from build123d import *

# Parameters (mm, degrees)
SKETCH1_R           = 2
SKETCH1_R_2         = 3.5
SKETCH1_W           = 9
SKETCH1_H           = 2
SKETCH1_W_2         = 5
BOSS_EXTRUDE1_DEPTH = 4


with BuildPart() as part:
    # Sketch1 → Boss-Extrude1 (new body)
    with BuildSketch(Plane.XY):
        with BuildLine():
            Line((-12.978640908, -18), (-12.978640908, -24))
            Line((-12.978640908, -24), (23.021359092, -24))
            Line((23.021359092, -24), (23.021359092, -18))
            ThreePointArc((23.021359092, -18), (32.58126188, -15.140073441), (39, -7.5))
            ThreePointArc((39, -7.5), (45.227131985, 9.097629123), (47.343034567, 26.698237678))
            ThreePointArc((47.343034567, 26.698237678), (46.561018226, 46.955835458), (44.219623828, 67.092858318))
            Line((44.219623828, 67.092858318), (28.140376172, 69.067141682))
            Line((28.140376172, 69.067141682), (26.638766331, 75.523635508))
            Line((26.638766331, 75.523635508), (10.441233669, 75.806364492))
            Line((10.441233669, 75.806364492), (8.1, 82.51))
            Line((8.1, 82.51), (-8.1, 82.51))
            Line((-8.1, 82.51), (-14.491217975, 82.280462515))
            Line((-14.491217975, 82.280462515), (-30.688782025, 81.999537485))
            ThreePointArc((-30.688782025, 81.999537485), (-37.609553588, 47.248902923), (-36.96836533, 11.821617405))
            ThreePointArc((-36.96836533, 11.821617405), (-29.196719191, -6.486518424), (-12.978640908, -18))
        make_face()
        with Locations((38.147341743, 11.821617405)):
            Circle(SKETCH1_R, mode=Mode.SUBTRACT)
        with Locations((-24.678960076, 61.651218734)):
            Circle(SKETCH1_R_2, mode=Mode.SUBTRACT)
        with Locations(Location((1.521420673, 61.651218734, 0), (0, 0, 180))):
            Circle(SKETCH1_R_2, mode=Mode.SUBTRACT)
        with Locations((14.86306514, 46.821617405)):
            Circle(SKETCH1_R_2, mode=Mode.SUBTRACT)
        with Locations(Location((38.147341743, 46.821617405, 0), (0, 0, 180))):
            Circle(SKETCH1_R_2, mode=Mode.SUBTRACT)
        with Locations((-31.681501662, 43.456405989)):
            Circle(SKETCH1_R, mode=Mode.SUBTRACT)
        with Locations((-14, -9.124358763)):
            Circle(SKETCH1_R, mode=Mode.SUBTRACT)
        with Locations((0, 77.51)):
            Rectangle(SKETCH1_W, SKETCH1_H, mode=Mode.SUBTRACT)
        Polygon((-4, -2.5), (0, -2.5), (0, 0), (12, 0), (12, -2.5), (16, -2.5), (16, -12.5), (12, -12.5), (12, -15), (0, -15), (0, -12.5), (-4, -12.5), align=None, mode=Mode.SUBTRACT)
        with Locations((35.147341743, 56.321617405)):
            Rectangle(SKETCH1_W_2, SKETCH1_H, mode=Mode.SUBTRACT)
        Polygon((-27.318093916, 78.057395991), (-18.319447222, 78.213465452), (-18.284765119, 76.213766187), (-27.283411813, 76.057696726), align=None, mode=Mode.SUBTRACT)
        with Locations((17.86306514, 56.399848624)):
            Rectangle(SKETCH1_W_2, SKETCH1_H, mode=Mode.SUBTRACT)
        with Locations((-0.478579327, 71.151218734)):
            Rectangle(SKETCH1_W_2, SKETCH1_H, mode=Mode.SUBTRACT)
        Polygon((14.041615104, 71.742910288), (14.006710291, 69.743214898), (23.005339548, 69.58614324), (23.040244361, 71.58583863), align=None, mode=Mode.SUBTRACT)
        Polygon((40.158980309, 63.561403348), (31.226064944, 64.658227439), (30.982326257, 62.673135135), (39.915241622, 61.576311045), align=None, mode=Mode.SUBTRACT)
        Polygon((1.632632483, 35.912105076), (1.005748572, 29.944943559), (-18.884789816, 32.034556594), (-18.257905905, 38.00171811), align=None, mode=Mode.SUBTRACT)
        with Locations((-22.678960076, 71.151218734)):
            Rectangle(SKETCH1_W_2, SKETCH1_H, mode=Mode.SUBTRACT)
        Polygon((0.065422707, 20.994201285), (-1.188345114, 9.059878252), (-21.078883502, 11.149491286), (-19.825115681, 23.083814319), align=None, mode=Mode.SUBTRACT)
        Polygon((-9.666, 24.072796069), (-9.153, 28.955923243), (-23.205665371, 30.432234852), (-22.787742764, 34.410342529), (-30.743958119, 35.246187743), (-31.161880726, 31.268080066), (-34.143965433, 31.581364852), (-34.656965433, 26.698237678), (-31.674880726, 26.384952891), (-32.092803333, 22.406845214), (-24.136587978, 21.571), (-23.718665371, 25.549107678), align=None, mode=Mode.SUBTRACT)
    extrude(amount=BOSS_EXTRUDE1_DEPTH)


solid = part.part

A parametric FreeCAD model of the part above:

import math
import FreeCAD as App
import Part
import Sketcher
from FreeCAD import Vector
Q = App.Units.Quantity


def add_polygon(sketch, points):
    """Adds a closed chain of lines whose ends are joined by coincident constraints."""
    first, n = sketch.GeometryCount, len(points)
    for a, b in zip(points, points[1:] + points[:1]):
        sketch.addGeometry(Part.LineSegment(App.Vector(*a, 0), App.Vector(*b, 0)), False)
    for i in range(n):
        sketch.addConstraint(Sketcher.Constraint("Coincident", first + i, 2, first + (i + 1) % n, 1))

doc = App.newDocument("Part")
params = doc.addObject("Spreadsheet::Sheet", "Params")
for row, (alias, value) in enumerate([
    ("sketch1_diameter", "4 mm"),
    ("sketch1_diameter2", "7 mm"),
    ("sketch1_width", "36 mm"),
    ("sketch1_width2", "4 mm"),
    ("sketch1_width3", "12 mm"),
    ("pad1_length", "4 mm"),
], start=1):
    params.set(f"A{row}", alias)
    params.set(f"B{row}", "=" + value)
    params.setAlias(f"B{row}", alias)

body = doc.addObject("PartDesign::Body", "Body")

# Sketch on XY plane
sketch1 = body.newObject("Sketcher::SketchObject", "Sketch")
sketch1.AttachmentSupport = (doc.getObject("XY_Plane"), [""])
sketch1.MapMode = "FlatFace"
sketch1.addGeometry(Part.LineSegment(Vector(-12.978641, -18, 0), Vector(-12.978641, -24, 0)), False)  # 0
sketch1.addGeometry(Part.LineSegment(Vector(-12.978641, -24, 0), Vector(23.021359, -24, 0)), False)  # 1
sketch1.addGeometry(Part.LineSegment(Vector(23.021359, -24, 0), Vector(23.021359, -18, 0)), False)  # 2
sketch1.addGeometry(Part.ArcOfCircle(Part.Circle(Vector(23.021359, -0.592049, 0), Vector(0, 0, 1), 17.407951), math.radians(-90), math.radians(-23.379989)), False)  # 3
sketch1.addGeometry(Part.ArcOfCircle(Part.Circle(Vector(-26.918056, 26.698238, 0), Vector(0, 0, 1), 74.26109), math.radians(-27.42025), math.radians(0)), False)  # 4
sketch1.addGeometry(Part.ArcOfCircle(Part.Circle(Vector(-215.427572, 26.698238, 0), Vector(0, 0, 1), 262.770607), math.radians(0), math.radians(8.842904)), False)  # 5
sketch1.addGeometry(Part.LineSegment(Vector(44.219624, 67.092858, 0), Vector(28.140376, 69.067142, 0)), False)  # 6
sketch1.addGeometry(Part.LineSegment(Vector(28.140376, 69.067142, 0), Vector(26.638766, 75.523636, 0)), False)  # 7
sketch1.addGeometry(Part.LineSegment(Vector(26.638766, 75.523636, 0), Vector(10.441234, 75.806364, 0)), False)  # 8
sketch1.addGeometry(Part.LineSegment(Vector(10.441234, 75.806364, 0), Vector(8.1, 82.51, 0)), False)  # 9
sketch1.addGeometry(Part.LineSegment(Vector(8.1, 82.51, 0), Vector(-8.1, 82.51, 0)), False)  # 10
sketch1.addGeometry(Part.LineSegment(Vector(-8.1, 82.51, 0), Vector(-14.491218, 82.280463, 0)), False)  # 11
sketch1.addGeometry(Part.LineSegment(Vector(-14.491218, 82.280463, 0), Vector(-30.688782, 81.999537, 0)), False)  # 12
sketch1.addGeometry(Part.ArcOfCircle(Part.Circle(Vector(127.100516, 32.510498, 0), Vector(0, 0, 1), 165.368157), math.radians(162.586487), math.radians(187.186993)), False)  # 13
sketch1.addGeometry(Part.ArcOfCircle(Part.Circle(Vector(-0.762492, 16.387133, 0), Vector(0, 0, 1), 36.492591), math.radians(-172.813007), math.radians(-109.55776)), False)  # 14
sketch1.addGeometry(Part.Circle(Vector(-14, -9.124359, 0), Vector(0, 0, 1), 2), False)  # 15
add_polygon(sketch1, [(-9.153, 28.955923), (-9.666, 24.072796), (-23.718665, 25.549108), (-24.136588, 21.571), (-32.092803, 22.406845), (-31.674881, 26.384953), (-34.656965, 26.698238), (-34.143965, 31.581365), (-31.161881, 31.26808), (-30.743958, 35.246188), (-22.787743, 34.410343), (-23.205665, 30.432235)])  # lines 16-27
add_polygon(sketch1, [(-19.825116, 23.083814), (0.065423, 20.994201), (-1.188345, 9.059878), (-21.078884, 11.149491)])  # lines 28-31
add_polygon(sketch1, [(-4, -12.5), (-4, -2.5), (0, -2.5), (0, 0), (12, 0), (12, -2.5), (16, -2.5), (16, -12.5), (12, -12.5), (12, -15), (0, -15), (0, -12.5)])  # lines 32-43
sketch1.addGeometry(Part.Circle(Vector(38.147342, 11.821617, 0), Vector(0, 0, 1), 2), False)  # 44
sketch1.addGeometry(Part.Circle(Vector(-31.681502, 43.456406, 0), Vector(0, 0, 1), 2), False)  # 45
add_polygon(sketch1, [(-18.257906, 38.001718), (1.632632, 35.912105), (1.005749, 29.944944), (-18.88479, 32.034557)])  # lines 46-49
sketch1.addGeometry(Part.Circle(Vector(-24.67896, 61.651219, 0), Vector(0, 0, 1), 3.5), False)  # 50
add_polygon(sketch1, [(-20.17896, 70.151219), (-25.17896, 70.151219), (-25.17896, 72.151219), (-20.17896, 72.151219)])  # lines 51-54
add_polygon(sketch1, [(-27.283412, 76.057697), (-27.318094, 78.057396), (-18.319447, 78.213465), (-18.284765, 76.213766)])  # lines 55-58
sketch1.addGeometry(Part.Circle(Vector(1.521421, 61.651219, 0), Vector(0, 0, 1), 3.5), False)  # 59
add_polygon(sketch1, [(2.021421, 70.151219), (-2.978579, 70.151219), (-2.978579, 72.151219), (2.021421, 72.151219)])  # lines 60-63
add_polygon(sketch1, [(4.5, 76.51), (-4.5, 76.51), (-4.5, 78.51), (4.5, 78.51)])  # lines 64-67
sketch1.addGeometry(Part.Circle(Vector(14.863065, 46.821617, 0), Vector(0, 0, 1), 3.5), False)  # 68
sketch1.addGeometry(Part.Circle(Vector(38.147342, 46.821617, 0), Vector(0, 0, 1), 3.5), False)  # 69
add_polygon(sketch1, [(20.363065, 55.399849), (15.363065, 55.399849), (15.363065, 57.399849), (20.363065, 57.399849)])  # lines 70-73
add_polygon(sketch1, [(14.00671, 69.743215), (14.041615, 71.74291), (23.040244, 71.585839), (23.00534, 69.586143)])  # lines 74-77
add_polygon(sketch1, [(37.647342, 55.321617), (32.647342, 55.321617), (32.647342, 57.321617), (37.647342, 57.321617)])  # lines 78-81
add_polygon(sketch1, [(31.226065, 64.658227), (40.15898, 63.561403), (39.915242, 61.576311), (30.982326, 62.673135)])  # lines 82-85
sketch1.addConstraint(Sketcher.Constraint("Coincident", 0, 2, 1, 1))
sketch1.addConstraint(Sketcher.Constraint("Coincident", 1, 2, 2, 1))
sketch1.addConstraint(Sketcher.Constraint("Coincident", 2, 2, 3, 1))
sketch1.addConstraint(Sketcher.Constraint("Coincident", 3, 2, 4, 1))
sketch1.addConstraint(Sketcher.Constraint("Tangent", 4, 2, 5, 1))
sketch1.addConstraint(Sketcher.Constraint("Coincident", 5, 2, 6, 1))
sketch1.addConstraint(Sketcher.Constraint("Coincident", 6, 2, 7, 1))
sketch1.addConstraint(Sketcher.Constraint("Coincident", 7, 2, 8, 1))
sketch1.addConstraint(Sketcher.Constraint("Coincident", 8, 2, 9, 1))
sketch1.addConstraint(Sketcher.Constraint("Coincident", 9, 2, 10, 1))
sketch1.addConstraint(Sketcher.Constraint("Coincident", 10, 2, 11, 1))
sketch1.addConstraint(Sketcher.Constraint("Coincident", 11, 2, 12, 1))
sketch1.addConstraint(Sketcher.Constraint("Coincident", 12, 2, 13, 1))
sketch1.addConstraint(Sketcher.Constraint("Tangent", 13, 2, 14, 1))
sketch1.addConstraint(Sketcher.Constraint("Coincident", 14, 2, 0, 1))
sketch1.addConstraint(Sketcher.Constraint("Vertical", 0))
sketch1.addConstraint(Sketcher.Constraint("Horizontal", 1))
sketch1.addConstraint(Sketcher.Constraint("Vertical", 2))
sketch1.addConstraint(Sketcher.Constraint("Horizontal", 10))
sketch1.addConstraint(Sketcher.Constraint("Vertical", 32))
sketch1.addConstraint(Sketcher.Constraint("Horizontal", 33))
sketch1.addConstraint(Sketcher.Constraint("Vertical", 34))
sketch1.addConstraint(Sketcher.Constraint("Horizontal", 35))
sketch1.addConstraint(Sketcher.Constraint("Vertical", 36))
sketch1.addConstraint(Sketcher.Constraint("Horizontal", 37))
sketch1.addConstraint(Sketcher.Constraint("Vertical", 38))
sketch1.addConstraint(Sketcher.Constraint("Horizontal", 39))
sketch1.addConstraint(Sketcher.Constraint("Vertical", 40))
sketch1.addConstraint(Sketcher.Constraint("Horizontal", 41))
sketch1.addConstraint(Sketcher.Constraint("Vertical", 42))
sketch1.addConstraint(Sketcher.Constraint("Horizontal", 43))
sketch1.addConstraint(Sketcher.Constraint("Horizontal", 51))
sketch1.addConstraint(Sketcher.Constraint("Vertical", 52))
sketch1.addConstraint(Sketcher.Constraint("Horizontal", 53))
sketch1.addConstraint(Sketcher.Constraint("Vertical", 54))
sketch1.addConstraint(Sketcher.Constraint("Horizontal", 60))
sketch1.addConstraint(Sketcher.Constraint("Vertical", 61))
sketch1.addConstraint(Sketcher.Constraint("Horizontal", 62))
sketch1.addConstraint(Sketcher.Constraint("Vertical", 63))
sketch1.addConstraint(Sketcher.Constraint("Horizontal", 64))
sketch1.addConstraint(Sketcher.Constraint("Vertical", 65))
sketch1.addConstraint(Sketcher.Constraint("Horizontal", 66))
sketch1.addConstraint(Sketcher.Constraint("Vertical", 67))
sketch1.addConstraint(Sketcher.Constraint("Horizontal", 70))
sketch1.addConstraint(Sketcher.Constraint("Vertical", 71))
sketch1.addConstraint(Sketcher.Constraint("Horizontal", 72))
sketch1.addConstraint(Sketcher.Constraint("Vertical", 73))
sketch1.addConstraint(Sketcher.Constraint("Horizontal", 78))
sketch1.addConstraint(Sketcher.Constraint("Vertical", 79))
sketch1.addConstraint(Sketcher.Constraint("Horizontal", 80))
sketch1.addConstraint(Sketcher.Constraint("Vertical", 81))
sketch1.addConstraint(Sketcher.Constraint("Coincident", 34, 2, -1, 1))
sketch1.addConstraint(Sketcher.Constraint("Equal", 15, 44))
sketch1.addConstraint(Sketcher.Constraint("Equal", 44, 45))
sketch1.addConstraint(Sketcher.Constraint("Equal", 50, 59))
sketch1.addConstraint(Sketcher.Constraint("Equal", 59, 68))
sketch1.addConstraint(Sketcher.Constraint("Equal", 68, 69))
sketch1.addConstraint(Sketcher.Constraint("PointOnObject", 41, 2, -2))
sketch1.addConstraint(Sketcher.Constraint("Perpendicular", 16, 17))
sketch1.addConstraint(Sketcher.Constraint("Perpendicular", 17, 18))
sketch1.addConstraint(Sketcher.Constraint("Perpendicular", 18, 19))
sketch1.addConstraint(Sketcher.Constraint("Perpendicular", 19, 20))
sketch1.addConstraint(Sketcher.Constraint("Perpendicular", 20, 21))
sketch1.addConstraint(Sketcher.Constraint("Perpendicular", 21, 22))
sketch1.addConstraint(Sketcher.Constraint("Perpendicular", 22, 23))
sketch1.addConstraint(Sketcher.Constraint("Perpendicular", 23, 24))
sketch1.addConstraint(Sketcher.Constraint("Perpendicular", 24, 25))
sketch1.addConstraint(Sketcher.Constraint("Perpendicular", 25, 26))
sketch1.addConstraint(Sketcher.Constraint("Perpendicular", 26, 27))
sketch1.addConstraint(Sketcher.Constraint("Parallel", 27, 28))
sketch1.addConstraint(Sketcher.Constraint("Perpendicular", 28, 29))
sketch1.addConstraint(Sketcher.Constraint("Perpendicular", 29, 30))
sketch1.addConstraint(Sketcher.Constraint("Perpendicular", 30, 31))
sketch1.addConstraint(Sketcher.Constraint("Perpendicular", 31, 46))
sketch1.addConstraint(Sketcher.Constraint("Perpendicular", 46, 47))
sketch1.addConstraint(Sketcher.Constraint("Perpendicular", 47, 48))
sketch1.addConstraint(Sketcher.Constraint("Perpendicular", 48, 49))
sketch1.addConstraint(Sketcher.Constraint("Perpendicular", 12, 55))
sketch1.addConstraint(Sketcher.Constraint("Perpendicular", 55, 56))
sketch1.addConstraint(Sketcher.Constraint("Perpendicular", 56, 57))
sketch1.addConstraint(Sketcher.Constraint("Perpendicular", 57, 58))
sketch1.addConstraint(Sketcher.Constraint("Perpendicular", 8, 74))
sketch1.addConstraint(Sketcher.Constraint("Perpendicular", 74, 75))
sketch1.addConstraint(Sketcher.Constraint("Perpendicular", 75, 76))
sketch1.addConstraint(Sketcher.Constraint("Perpendicular", 76, 77))
sketch1.addConstraint(Sketcher.Constraint("Parallel", 6, 82))
sketch1.addConstraint(Sketcher.Constraint("Perpendicular", 82, 83))
sketch1.addConstraint(Sketcher.Constraint("Perpendicular", 83, 84))
sketch1.addConstraint(Sketcher.Constraint("Perpendicular", 84, 85))
sketch1.addConstraint(Sketcher.Constraint("Horizontal", 4, 3, 5, 3))
sketch1.addConstraint(Sketcher.Constraint("Horizontal", 50, 3, 59, 3))
sketch1.addConstraint(Sketcher.Constraint("Horizontal", 68, 3, 69, 3))
sketch1.addConstraint(Sketcher.Constraint("Horizontal", 44, 3, 13, 2))
sketch1.addConstraint(Sketcher.Constraint("Horizontal", 2, 2, 14, 2))
sketch1.addConstraint(Sketcher.Constraint("Horizontal", 4, 2, 21, 2))
sketch1.addConstraint(Sketcher.Constraint("Horizontal", 33, 2, 36, 2))
sketch1.addConstraint(Sketcher.Constraint("Horizontal", 39, 2, 42, 2))
sketch1.addConstraint(Sketcher.Constraint("Horizontal", 54, 2, 60, 2))
sketch1.addConstraint(Sketcher.Constraint("Horizontal", 53, 2, 61, 2))
sketch1.addConstraint(Sketcher.Constraint("Vertical", 44, 3, 69, 3))
sketch1.addConstraint(Sketcher.Constraint("Vertical", 3, 3, 1, 2))
sketch1.addConstraint(Sketcher.Constraint("Vertical", 36, 2, 39, 2))
sketch1.addConstraint(Sketcher.Constraint("Equal", 33, 37))
sketch1.addConstraint(Sketcher.Constraint("Equal", 53, 60))
sketch1.addConstraint(Sketcher.Constraint("Equal", 62, 70))
sketch1.addConstraint(Sketcher.Constraint("Equal", 72, 78))
sketch1.addConstraint(Sketcher.Constraint("Equal", 36, 40))
sketch1.addConstraint(Sketcher.Constraint("Equal", 63, 65))
sketch1.addConstraint(Sketcher.Constraint("Equal", 67, 71))
sketch1.addConstraint(Sketcher.Constraint("Equal", 73, 79))
sketch1.addConstraint(Sketcher.Constraint("Equal", 6, 8))
sketch1.addConstraint(Sketcher.Constraint("Equal", 8, 12))
sketch1.addConstraint(Sketcher.Constraint("Equal", 18, 20))
sketch1.addConstraint(Sketcher.Constraint("Equal", 16, 22))
sketch1.addConstraint(Sketcher.Constraint("Equal", 21, 23))
sketch1.addConstraint(Sketcher.Constraint("Equal", 20, 24))
sketch1.addConstraint(Sketcher.Constraint("Equal", 19, 25))
sketch1.addConstraint(Sketcher.Constraint("Equal", 30, 46))
sketch1.addConstraint(Sketcher.Constraint("Equal", 57, 74))
sketch1.addConstraint(Sketcher.Constraint("Equal", 58, 75))
sketch1.addConstraint(Sketcher.Constraint("Equal", 77, 82))
sketch1.addConstraint(Sketcher.Constraint("Equal", 76, 83))
sketch1.addConstraint(Sketcher.Constraint("Diameter", 15, 4.0))
sketch1.addConstraint(Sketcher.Constraint("Diameter", 50, 7.0))
sketch1.addConstraint(Sketcher.Constraint("DistanceX", 1, 1, 1, 2, 36.0))
sketch1.addConstraint(Sketcher.Constraint("DistanceX", 33, 1, 33, 2, 4.0))
sketch1.addConstraint(Sketcher.Constraint("DistanceX", 35, 1, 35, 2, 12.0))
sketch1.addConstraint(Sketcher.Constraint("DistanceX", 51, 2, 51, 1, 5.0))
sketch1.addConstraint(Sketcher.Constraint("DistanceX", 64, 2, 64, 1, 9.0))
sketch1.addConstraint(Sketcher.Constraint("DistanceY", 0, 2, 0, 1, 6.0))
sketch1.addConstraint(Sketcher.Constraint("DistanceY", 32, 1, 32, 2, 10.0))
sketch1.addConstraint(Sketcher.Constraint("DistanceY", 52, 1, 52, 2, 2.0))
sketch1.addConstraint(Sketcher.Constraint("Angle", 6, Q("173 deg")))
sketch1.addConstraint(Sketcher.Constraint("Angle", 8, Q("179 deg")))
sketch1.addConstraint(Sketcher.Constraint("Distance", 18, 4.0))
sketch1.addConstraint(Sketcher.Constraint("Distance", 19, 8.0))
sketch1.addConstraint(Sketcher.Constraint("Distance", 28, 20.0))
sketch1.addConstraint(Sketcher.Constraint("Distance", 29, 12.0))
sketch1.addConstraint(Sketcher.Constraint("Distance", 47, 6.0))
sketch1.addConstraint(Sketcher.Constraint("Distance", 55, 2.0))
sketch1.addConstraint(Sketcher.Constraint("Distance", 56, 9.0))
sketch1.addConstraint(Sketcher.Constraint("DistanceX", 10, 2, 10, 1, 16.2))
sketch1.addConstraint(Sketcher.Constraint("DistanceY", 34, 1, 34, 2, 2.5))
sketch1.addConstraint(Sketcher.Constraint("DistanceX", 15, 3, -1, 1, 14.0))
sketch1.addConstraint(Sketcher.Constraint("DistanceY", 0, 2, -1, 1, 24.0))
sketch1.addConstraint(Sketcher.Constraint("DistanceX", -1, 1, 3, 2, 39.0))
sketch1.addConstraint(Sketcher.Constraint("Distance", 6, 16.2))
sketch1.addConstraint(Sketcher.Constraint("DistanceY", 3, 2, -1, 1, 7.5))
sketch1.addConstraint(Sketcher.Constraint("DistanceX", -1, 1, 9, 2, 8.1))
sketch1.addConstraint(Sketcher.Constraint("DistanceX", 64, 2, -1, 1, 4.5))
sketch1.addConstraint(Sketcher.Constraint("Distance", 16, 4.91))
sketch1.addConstraint(Sketcher.Constraint("Distance", 17, 14.13))
sketch1.addConstraint(Sketcher.Constraint("DistanceY", -1, 1, 9, 2, 82.51))
sketch1.addConstraint(Sketcher.Constraint("DistanceY", -1, 1, 64, 2, 76.51))
sketch1.addConstraint(Sketcher.Constraint("Radius", 3, 17.407951))
sketch1.addConstraint(Sketcher.Constraint("Radius", 4, 74.26109))
sketch1.addConstraint(Sketcher.Constraint("Radius", 14, 36.492591))
sketch1.addConstraint(Sketcher.Constraint("DistanceX", 16, 2, -1, 1, 9.666))
sketch1.addConstraint(Sketcher.Constraint("DistanceY", -1, 1, 18, 2, 21.571))
sketch1.addConstraint(Sketcher.Constraint("DistanceX", 27, 2, -1, 1, 9.153))
sketch1.addConstraint(Sketcher.Constraint("Radius", 5, 262.770607))
sketch1.addConstraint(Sketcher.Constraint("Radius", 13, 165.368157))
sketch1.addConstraint(Sketcher.Constraint("DistanceY", -1, 1, 13, 3, 32.510498))
sketch1.addConstraint(Sketcher.Constraint("DistanceX", 45, 3, -1, 1, 31.681502))
sketch1.addConstraint(Sketcher.Constraint("DistanceY", -1, 1, 28, 2, 20.994201))
sketch1.addConstraint(Sketcher.Constraint("Distance", 7, 6.628812))
sketch1.addConstraint(Sketcher.Constraint("Distance", 9, 7.100712))
sketch1.addConstraint(Sketcher.Constraint("Distance", 11, 6.395339))
sketch1.addConstraint(Sketcher.Constraint("DistanceY", 15, 3, -1, 1, 9.124359))
sketch1.addConstraint(Sketcher.Constraint("DistanceX", -1, 1, 44, 3, 38.147342))
sketch1.addConstraint(Sketcher.Constraint("DistanceX", 50, 3, -1, 1, 24.67896))
sketch1.addConstraint(Sketcher.Constraint("DistanceY", -1, 1, 50, 3, 61.651219))
sketch1.addConstraint(Sketcher.Constraint("DistanceX", -1, 1, 59, 3, 1.521421))
sketch1.addConstraint(Sketcher.Constraint("DistanceY", -1, 1, 6, 2, 69.067142))
sketch1.addConstraint(Sketcher.Constraint("DistanceX", -1, 1, 47, 2, 1.005749))
sketch1.addConstraint(Sketcher.Constraint("DistanceY", -1, 1, 49, 2, 38.001718))
sketch1.addConstraint(Sketcher.Constraint("DistanceX", 51, 2, -1, 1, 25.17896))
sketch1.addConstraint(Sketcher.Constraint("DistanceY", -1, 1, 51, 2, 70.151219))
sketch1.addConstraint(Sketcher.Constraint("DistanceX", 58, 2, -1, 1, 27.283412))
sketch1.addConstraint(Sketcher.Constraint("DistanceX", 60, 2, -1, 1, 2.978579))
sketch1.addConstraint(Sketcher.Constraint("DistanceY", -1, 1, 70, 2, 55.399849))
sketch1.addConstraint(Sketcher.Constraint("DistanceY", -1, 1, 74, 2, 71.74291))
sketch1.addConstraint(Sketcher.Constraint("DistanceX", -1, 1, 76, 2, 23.00534))
sketch1.addConstraint(Sketcher.Constraint("DistanceX", -1, 1, 78, 2, 32.647342))
sketch1.addConstraint(Sketcher.Constraint("DistanceX", -1, 1, 82, 2, 40.15898))
sketch1.addConstraint(Sketcher.Constraint("DistanceY", -1, 1, 83, 2, 61.576311))
sketch1.addConstraint(Sketcher.Constraint("Distance", 21, 2.998496))
sketch1.addConstraint(Sketcher.Constraint("DistanceX", -1, 1, 13, 3, 127.100516))
sketch1.addConstraint(Sketcher.Constraint("DistanceY", -1, 1, 45, 3, 43.456406))
sketch1.addConstraint(Sketcher.Constraint("DistanceX", -1, 1, 68, 3, 14.863065))
sketch1.addConstraint(Sketcher.Constraint("DistanceY", -1, 1, 68, 3, 46.821617))
sketch1.addConstraint(Sketcher.Constraint("DistanceX", 11, 2, -1, 1, 14.491218))
sketch1.addConstraint(Sketcher.Constraint("DistanceX", -1, 1, 28, 2, 0.065423))
sketch1.addConstraint(Sketcher.Constraint("DistanceY", -1, 1, 55, 2, 78.057396))
sketch1.addConstraint(Sketcher.Constraint("DistanceX", -1, 1, 70, 2, 15.363065))
sketch1.addConstraint(Sketcher.Constraint("DistanceY", -1, 1, 78, 2, 55.321617))
sketch1.setExpression("Constraints[186]", "Params.sketch1_diameter")
sketch1.setExpression("Constraints[187]", "Params.sketch1_diameter2")
sketch1.setExpression("Constraints[188]", "Params.sketch1_width")
sketch1.setExpression("Constraints[189]", "Params.sketch1_width2")
sketch1.setExpression("Constraints[190]", "Params.sketch1_width3")
pad1 = body.newObject("PartDesign::Pad", "Pad")
pad1.Profile = sketch1
pad1.setExpression("Length", "Params.pad1_length")

doc.recompute()
